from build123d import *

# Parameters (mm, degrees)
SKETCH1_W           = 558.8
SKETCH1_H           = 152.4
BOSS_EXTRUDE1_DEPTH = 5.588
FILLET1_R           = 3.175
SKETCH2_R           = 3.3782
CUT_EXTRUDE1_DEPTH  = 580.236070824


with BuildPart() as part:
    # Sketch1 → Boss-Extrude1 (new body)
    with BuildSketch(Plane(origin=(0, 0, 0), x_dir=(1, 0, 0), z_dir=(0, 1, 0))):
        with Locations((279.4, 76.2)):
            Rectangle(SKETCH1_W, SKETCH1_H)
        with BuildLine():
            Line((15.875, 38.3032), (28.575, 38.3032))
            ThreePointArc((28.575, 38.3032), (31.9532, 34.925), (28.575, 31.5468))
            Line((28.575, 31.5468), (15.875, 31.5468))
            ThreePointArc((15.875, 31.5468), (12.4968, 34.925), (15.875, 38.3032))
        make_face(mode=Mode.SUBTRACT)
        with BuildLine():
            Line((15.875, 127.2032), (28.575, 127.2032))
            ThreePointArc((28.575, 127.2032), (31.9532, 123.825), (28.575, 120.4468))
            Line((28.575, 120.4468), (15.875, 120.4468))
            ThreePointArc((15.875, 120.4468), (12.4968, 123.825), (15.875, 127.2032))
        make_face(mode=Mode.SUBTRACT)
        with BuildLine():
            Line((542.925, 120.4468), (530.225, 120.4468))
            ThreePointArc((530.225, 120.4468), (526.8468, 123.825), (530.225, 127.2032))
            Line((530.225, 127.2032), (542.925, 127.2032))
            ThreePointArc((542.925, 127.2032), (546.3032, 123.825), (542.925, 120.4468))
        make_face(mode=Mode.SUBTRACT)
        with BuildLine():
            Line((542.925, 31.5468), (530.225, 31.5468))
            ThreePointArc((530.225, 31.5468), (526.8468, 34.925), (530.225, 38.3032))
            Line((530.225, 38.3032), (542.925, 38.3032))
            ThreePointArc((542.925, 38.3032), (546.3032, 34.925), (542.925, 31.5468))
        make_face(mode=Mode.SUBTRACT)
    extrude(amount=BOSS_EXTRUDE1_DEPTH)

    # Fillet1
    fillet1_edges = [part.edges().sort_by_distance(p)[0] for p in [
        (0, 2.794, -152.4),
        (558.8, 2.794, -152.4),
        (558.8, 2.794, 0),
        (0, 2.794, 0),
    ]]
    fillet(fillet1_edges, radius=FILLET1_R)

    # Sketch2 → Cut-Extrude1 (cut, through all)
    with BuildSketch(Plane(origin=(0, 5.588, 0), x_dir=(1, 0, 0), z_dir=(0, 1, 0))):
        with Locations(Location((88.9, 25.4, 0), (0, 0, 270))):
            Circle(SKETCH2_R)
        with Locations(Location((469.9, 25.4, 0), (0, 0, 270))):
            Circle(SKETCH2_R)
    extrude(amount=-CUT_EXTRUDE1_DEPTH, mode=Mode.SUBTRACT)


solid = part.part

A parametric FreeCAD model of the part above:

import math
import FreeCAD as App
import Part
import Sketcher
Q = App.Units.Quantity


def edges_at(feature, points):
    """Names of the edges that pass closest to the given points."""
    edges = feature.Shape.Edges
    near = lambda p: min(range(len(edges)), key=lambda i: edges[i].distToShape(Part.Vertex(*p))[0])
    return sorted({f"Edge{near(p) + 1}" for p in points})

doc = App.newDocument("Part")
body = doc.addObject("PartDesign::Body", "Body")

# Sketch on XZ plane
sketch1 = doc.addObject("Sketcher::SketchObject", "Sketch")
body.addObject(sketch1)
sketch1.AttachmentSupport = (doc.XZ_Plane, [""])
sketch1.MapMode = "FlatFace"
sketch1.addGeometry([
    Part.LineSegment(App.Vector(0, -152.4, 0), App.Vector(0, 0, 0)),  # 0
    Part.LineSegment(App.Vector(0, 0, 0), App.Vector(558.8, 0, 0)),  # 1
    Part.LineSegment(App.Vector(558.8, 0, 0), App.Vector(558.8, -152.4, 0)),  # 2
    Part.LineSegment(App.Vector(558.8, -152.4, 0), App.Vector(0, -152.4, 0)),  # 3
    Part.ArcOfCircle(Part.Circle(App.Vector(15.9, -34.9, 0), App.Vector(0, 0, 1), 3.4), math.radians(90), math.radians(270)),  # 4
    Part.LineSegment(App.Vector(15.9, -38.3, 0), App.Vector(28.6, -38.3, 0)),  # 5
    Part.ArcOfCircle(Part.Circle(App.Vector(28.6, -34.9, 0), App.Vector(0, 0, 1), 3.4), math.radians(-90), math.radians(90)),  # 6
    Part.LineSegment(App.Vector(28.6, -31.5, 0), App.Vector(15.9, -31.5, 0)),  # 7
    Part.ArcOfCircle(Part.Circle(App.Vector(542.9, -34.9, 0), App.Vector(0, 0, 1), 3.4), math.radians(-90), math.radians(90)),  # 8
    Part.LineSegment(App.Vector(542.9, -31.5, 0), App.Vector(530.2, -31.5, 0)),  # 9
    Part.ArcOfCircle(Part.Circle(App.Vector(530.2, -34.9, 0), App.Vector(0, 0, 1), 3.4), math.radians(90), math.radians(270)),  # 10
    Part.LineSegment(App.Vector(530.2, -38.3, 0), App.Vector(542.9, -38.3, 0)),  # 11
    Part.ArcOfCircle(Part.Circle(App.Vector(15.9, -123.8, 0), App.Vector(0, 0, 1), 3.4), math.radians(90), math.radians(270)),  # 12
    Part.LineSegment(App.Vector(15.9, -127.2, 0), App.Vector(28.6, -127.2, 0)),  # 13
    Part.ArcOfCircle(Part.Circle(App.Vector(28.6, -123.8, 0), App.Vector(0, 0, 1), 3.4), math.radians(-90), math.radians(90)),  # 14
    Part.LineSegment(App.Vector(28.6, -120.4, 0), App.Vector(15.9, -120.4, 0)),  # 15
    Part.ArcOfCircle(Part.Circle(App.Vector(542.9, -123.8, 0), App.Vector(0, 0, 1), 3.4), math.radians(-90), math.radians(90)),  # 16
    Part.LineSegment(App.Vector(542.9, -120.4, 0), App.Vector(530.2, -120.4, 0)),  # 17
    Part.ArcOfCircle(Part.Circle(App.Vector(530.2, -123.8, 0), App.Vector(0, 0, 1), 3.4), math.radians(90), math.radians(270)),  # 18
    Part.LineSegment(App.Vector(530.2, -127.2, 0), App.Vector(542.9, -127.2, 0)),  # 19
], False)
sketch1.addConstraint([
    Sketcher.Constraint("Coincident", 0, 2, 1, 1),
    Sketcher.Constraint("Coincident", 1, 2, 2, 1),
    Sketcher.Constraint("Coincident", 2, 2, 3, 1),
    Sketcher.Constraint("Coincident", 3, 2, 0, 1),
    Sketcher.Constraint("Tangent", 4, 2, 5, 1),
    Sketcher.Constraint("Tangent", 5, 2, 6, 1),
    Sketcher.Constraint("Tangent", 6, 2, 7, 1),
    Sketcher.Constraint("Tangent", 7, 2, 4, 1),
    Sketcher.Constraint("Tangent", 8, 2, 9, 1),
    Sketcher.Constraint("Tangent", 9, 2, 10, 1),
    Sketcher.Constraint("Tangent", 10, 2, 11, 1),
    Sketcher.Constraint("Tangent", 11, 2, 8, 1),
    Sketcher.Constraint("Tangent", 12, 2, 13, 1),
    Sketcher.Constraint("Tangent", 13, 2, 14, 1),
    Sketcher.Constraint("Tangent", 14, 2, 15, 1),
    Sketcher.Constraint("Tangent", 15, 2, 12, 1),
    Sketcher.Constraint("Tangent", 16, 2, 17, 1),
    Sketcher.Constraint("Tangent", 17, 2, 18, 1),
    Sketcher.Constraint("Tangent", 18, 2, 19, 1),
    Sketcher.Constraint("Tangent", 19, 2, 16, 1),
    Sketcher.Constraint("Vertical", 0),
    Sketcher.Constraint("Horizontal", 1),
    Sketcher.Constraint("Vertical", 2),
    Sketcher.Constraint("Horizontal", 3),
    Sketcher.Constraint("Horizontal", 5),
    Sketcher.Constraint("Horizontal", 7),
    Sketcher.Constraint("Horizontal", 9),
    Sketcher.Constraint("Horizontal", 11),
    Sketcher.Constraint("Horizontal", 13),
    Sketcher.Constraint("Horizontal", 15),
    Sketcher.Constraint("Horizontal", 17),
    Sketcher.Constraint("Horizontal", 19),
    Sketcher.Constraint("Coincident", 0, 2, -1, 1),
    Sketcher.Constraint("Equal", 6, 8),
    Sketcher.Constraint("Equal", 10, 12),
    Sketcher.Constraint("Equal", 14, 16),
    Sketcher.Constraint("Horizontal", 6, 3, 8, 3),
    Sketcher.Constraint("Horizontal", 14, 3, 16, 3),
    Sketcher.Constraint("Vertical", 4, 3, 12, 3),
    Sketcher.Constraint("Vertical", 6, 3, 14, 3),
    Sketcher.Constraint("Vertical", 8, 3, 16, 3),
    Sketcher.Constraint("Vertical", 10, 3, 18, 3),
    Sketcher.Constraint("Equal", 7, 9),
    Sketcher.Constraint("DistanceX", 1, 1, 1, 2, Q("22 in")),
    Sketcher.Constraint("DistanceY", 0, 1, 0, 2, Q("6 in")),
    Sketcher.Constraint("DistanceX", 5, 1, 5, 2, Q("0.5 in")),
    Sketcher.Constraint("Radius", 4, Q("0.133 in")),
    Sketcher.Constraint("DistanceY", 12, 3, 4, 3, Q("3.5 in")),
    Sketcher.Constraint("DistanceX", 6, 3, 8, 3, Q("20.25 in")),
    Sketcher.Constraint("DistanceX", -1, 1, 4, 3, Q("0.625 in")),
    Sketcher.Constraint("DistanceY", 4, 3, -1, 1, Q("1.375 in")),
])
pad1 = doc.addObject("PartDesign::Pad", "Pad")
body.addObject(pad1)
pad1.Profile = sketch1
pad1.Length = Q("0.22 in")
pad1.Reversed = True
doc.recompute()

fillet = doc.addObject("PartDesign::Fillet", "Fillet")
body.addObject(fillet)
fillet.Base = (pad1, edges_at(pad1, [
    (0, 2.794, -152.4),
    (558.8, 2.794, -152.4),
    (558.8, 2.794, 0),
    (0, 2.794, 0),
]))
fillet.Radius = Q("0.125 in")

# Sketch on XZ plane
sketch2 = doc.addObject("Sketcher::SketchObject", "Sketch001")
body.addObject(sketch2)
sketch2.AttachmentSupport = (doc.XZ_Plane, [""])
sketch2.MapMode = "FlatFace"
sketch2.AttachmentOffset = App.Placement(App.Vector(0, 0, -0.22 * 25.4), App.Rotation())
sketch2.addGeometry([
    Part.Circle(App.Vector(88.9, -25.4, 0), App.Vector(0, 0, 1), 3.4),
    Part.Circle(App.Vector(469.9, -25.4, 0), App.Vector(0, 0, 1), 3.4),
], False)
sketch2.addConstraint([
    Sketcher.Constraint("Equal", 0, 1),
    Sketcher.Constraint("Horizontal", 0, 3, 1, 3),
    Sketcher.Constraint("Diameter", 0, Q("0.266 in")),
    Sketcher.Constraint("DistanceY", 0, 3, -1, 1, Q("1 in")),
    Sketcher.Constraint("DistanceX", 0, 3, 1, 3, Q("15 in")),
    Sketcher.Constraint("DistanceX", -1, 1, 0, 3, Q("3.5 in")),
])
pocket1 = doc.addObject("PartDesign::Pocket", "Pocket")
body.addObject(pocket1)
pocket1.Profile = sketch2
pocket1.Type = "ThroughAll"
pocket1.Reversed = True

doc.recompute()
